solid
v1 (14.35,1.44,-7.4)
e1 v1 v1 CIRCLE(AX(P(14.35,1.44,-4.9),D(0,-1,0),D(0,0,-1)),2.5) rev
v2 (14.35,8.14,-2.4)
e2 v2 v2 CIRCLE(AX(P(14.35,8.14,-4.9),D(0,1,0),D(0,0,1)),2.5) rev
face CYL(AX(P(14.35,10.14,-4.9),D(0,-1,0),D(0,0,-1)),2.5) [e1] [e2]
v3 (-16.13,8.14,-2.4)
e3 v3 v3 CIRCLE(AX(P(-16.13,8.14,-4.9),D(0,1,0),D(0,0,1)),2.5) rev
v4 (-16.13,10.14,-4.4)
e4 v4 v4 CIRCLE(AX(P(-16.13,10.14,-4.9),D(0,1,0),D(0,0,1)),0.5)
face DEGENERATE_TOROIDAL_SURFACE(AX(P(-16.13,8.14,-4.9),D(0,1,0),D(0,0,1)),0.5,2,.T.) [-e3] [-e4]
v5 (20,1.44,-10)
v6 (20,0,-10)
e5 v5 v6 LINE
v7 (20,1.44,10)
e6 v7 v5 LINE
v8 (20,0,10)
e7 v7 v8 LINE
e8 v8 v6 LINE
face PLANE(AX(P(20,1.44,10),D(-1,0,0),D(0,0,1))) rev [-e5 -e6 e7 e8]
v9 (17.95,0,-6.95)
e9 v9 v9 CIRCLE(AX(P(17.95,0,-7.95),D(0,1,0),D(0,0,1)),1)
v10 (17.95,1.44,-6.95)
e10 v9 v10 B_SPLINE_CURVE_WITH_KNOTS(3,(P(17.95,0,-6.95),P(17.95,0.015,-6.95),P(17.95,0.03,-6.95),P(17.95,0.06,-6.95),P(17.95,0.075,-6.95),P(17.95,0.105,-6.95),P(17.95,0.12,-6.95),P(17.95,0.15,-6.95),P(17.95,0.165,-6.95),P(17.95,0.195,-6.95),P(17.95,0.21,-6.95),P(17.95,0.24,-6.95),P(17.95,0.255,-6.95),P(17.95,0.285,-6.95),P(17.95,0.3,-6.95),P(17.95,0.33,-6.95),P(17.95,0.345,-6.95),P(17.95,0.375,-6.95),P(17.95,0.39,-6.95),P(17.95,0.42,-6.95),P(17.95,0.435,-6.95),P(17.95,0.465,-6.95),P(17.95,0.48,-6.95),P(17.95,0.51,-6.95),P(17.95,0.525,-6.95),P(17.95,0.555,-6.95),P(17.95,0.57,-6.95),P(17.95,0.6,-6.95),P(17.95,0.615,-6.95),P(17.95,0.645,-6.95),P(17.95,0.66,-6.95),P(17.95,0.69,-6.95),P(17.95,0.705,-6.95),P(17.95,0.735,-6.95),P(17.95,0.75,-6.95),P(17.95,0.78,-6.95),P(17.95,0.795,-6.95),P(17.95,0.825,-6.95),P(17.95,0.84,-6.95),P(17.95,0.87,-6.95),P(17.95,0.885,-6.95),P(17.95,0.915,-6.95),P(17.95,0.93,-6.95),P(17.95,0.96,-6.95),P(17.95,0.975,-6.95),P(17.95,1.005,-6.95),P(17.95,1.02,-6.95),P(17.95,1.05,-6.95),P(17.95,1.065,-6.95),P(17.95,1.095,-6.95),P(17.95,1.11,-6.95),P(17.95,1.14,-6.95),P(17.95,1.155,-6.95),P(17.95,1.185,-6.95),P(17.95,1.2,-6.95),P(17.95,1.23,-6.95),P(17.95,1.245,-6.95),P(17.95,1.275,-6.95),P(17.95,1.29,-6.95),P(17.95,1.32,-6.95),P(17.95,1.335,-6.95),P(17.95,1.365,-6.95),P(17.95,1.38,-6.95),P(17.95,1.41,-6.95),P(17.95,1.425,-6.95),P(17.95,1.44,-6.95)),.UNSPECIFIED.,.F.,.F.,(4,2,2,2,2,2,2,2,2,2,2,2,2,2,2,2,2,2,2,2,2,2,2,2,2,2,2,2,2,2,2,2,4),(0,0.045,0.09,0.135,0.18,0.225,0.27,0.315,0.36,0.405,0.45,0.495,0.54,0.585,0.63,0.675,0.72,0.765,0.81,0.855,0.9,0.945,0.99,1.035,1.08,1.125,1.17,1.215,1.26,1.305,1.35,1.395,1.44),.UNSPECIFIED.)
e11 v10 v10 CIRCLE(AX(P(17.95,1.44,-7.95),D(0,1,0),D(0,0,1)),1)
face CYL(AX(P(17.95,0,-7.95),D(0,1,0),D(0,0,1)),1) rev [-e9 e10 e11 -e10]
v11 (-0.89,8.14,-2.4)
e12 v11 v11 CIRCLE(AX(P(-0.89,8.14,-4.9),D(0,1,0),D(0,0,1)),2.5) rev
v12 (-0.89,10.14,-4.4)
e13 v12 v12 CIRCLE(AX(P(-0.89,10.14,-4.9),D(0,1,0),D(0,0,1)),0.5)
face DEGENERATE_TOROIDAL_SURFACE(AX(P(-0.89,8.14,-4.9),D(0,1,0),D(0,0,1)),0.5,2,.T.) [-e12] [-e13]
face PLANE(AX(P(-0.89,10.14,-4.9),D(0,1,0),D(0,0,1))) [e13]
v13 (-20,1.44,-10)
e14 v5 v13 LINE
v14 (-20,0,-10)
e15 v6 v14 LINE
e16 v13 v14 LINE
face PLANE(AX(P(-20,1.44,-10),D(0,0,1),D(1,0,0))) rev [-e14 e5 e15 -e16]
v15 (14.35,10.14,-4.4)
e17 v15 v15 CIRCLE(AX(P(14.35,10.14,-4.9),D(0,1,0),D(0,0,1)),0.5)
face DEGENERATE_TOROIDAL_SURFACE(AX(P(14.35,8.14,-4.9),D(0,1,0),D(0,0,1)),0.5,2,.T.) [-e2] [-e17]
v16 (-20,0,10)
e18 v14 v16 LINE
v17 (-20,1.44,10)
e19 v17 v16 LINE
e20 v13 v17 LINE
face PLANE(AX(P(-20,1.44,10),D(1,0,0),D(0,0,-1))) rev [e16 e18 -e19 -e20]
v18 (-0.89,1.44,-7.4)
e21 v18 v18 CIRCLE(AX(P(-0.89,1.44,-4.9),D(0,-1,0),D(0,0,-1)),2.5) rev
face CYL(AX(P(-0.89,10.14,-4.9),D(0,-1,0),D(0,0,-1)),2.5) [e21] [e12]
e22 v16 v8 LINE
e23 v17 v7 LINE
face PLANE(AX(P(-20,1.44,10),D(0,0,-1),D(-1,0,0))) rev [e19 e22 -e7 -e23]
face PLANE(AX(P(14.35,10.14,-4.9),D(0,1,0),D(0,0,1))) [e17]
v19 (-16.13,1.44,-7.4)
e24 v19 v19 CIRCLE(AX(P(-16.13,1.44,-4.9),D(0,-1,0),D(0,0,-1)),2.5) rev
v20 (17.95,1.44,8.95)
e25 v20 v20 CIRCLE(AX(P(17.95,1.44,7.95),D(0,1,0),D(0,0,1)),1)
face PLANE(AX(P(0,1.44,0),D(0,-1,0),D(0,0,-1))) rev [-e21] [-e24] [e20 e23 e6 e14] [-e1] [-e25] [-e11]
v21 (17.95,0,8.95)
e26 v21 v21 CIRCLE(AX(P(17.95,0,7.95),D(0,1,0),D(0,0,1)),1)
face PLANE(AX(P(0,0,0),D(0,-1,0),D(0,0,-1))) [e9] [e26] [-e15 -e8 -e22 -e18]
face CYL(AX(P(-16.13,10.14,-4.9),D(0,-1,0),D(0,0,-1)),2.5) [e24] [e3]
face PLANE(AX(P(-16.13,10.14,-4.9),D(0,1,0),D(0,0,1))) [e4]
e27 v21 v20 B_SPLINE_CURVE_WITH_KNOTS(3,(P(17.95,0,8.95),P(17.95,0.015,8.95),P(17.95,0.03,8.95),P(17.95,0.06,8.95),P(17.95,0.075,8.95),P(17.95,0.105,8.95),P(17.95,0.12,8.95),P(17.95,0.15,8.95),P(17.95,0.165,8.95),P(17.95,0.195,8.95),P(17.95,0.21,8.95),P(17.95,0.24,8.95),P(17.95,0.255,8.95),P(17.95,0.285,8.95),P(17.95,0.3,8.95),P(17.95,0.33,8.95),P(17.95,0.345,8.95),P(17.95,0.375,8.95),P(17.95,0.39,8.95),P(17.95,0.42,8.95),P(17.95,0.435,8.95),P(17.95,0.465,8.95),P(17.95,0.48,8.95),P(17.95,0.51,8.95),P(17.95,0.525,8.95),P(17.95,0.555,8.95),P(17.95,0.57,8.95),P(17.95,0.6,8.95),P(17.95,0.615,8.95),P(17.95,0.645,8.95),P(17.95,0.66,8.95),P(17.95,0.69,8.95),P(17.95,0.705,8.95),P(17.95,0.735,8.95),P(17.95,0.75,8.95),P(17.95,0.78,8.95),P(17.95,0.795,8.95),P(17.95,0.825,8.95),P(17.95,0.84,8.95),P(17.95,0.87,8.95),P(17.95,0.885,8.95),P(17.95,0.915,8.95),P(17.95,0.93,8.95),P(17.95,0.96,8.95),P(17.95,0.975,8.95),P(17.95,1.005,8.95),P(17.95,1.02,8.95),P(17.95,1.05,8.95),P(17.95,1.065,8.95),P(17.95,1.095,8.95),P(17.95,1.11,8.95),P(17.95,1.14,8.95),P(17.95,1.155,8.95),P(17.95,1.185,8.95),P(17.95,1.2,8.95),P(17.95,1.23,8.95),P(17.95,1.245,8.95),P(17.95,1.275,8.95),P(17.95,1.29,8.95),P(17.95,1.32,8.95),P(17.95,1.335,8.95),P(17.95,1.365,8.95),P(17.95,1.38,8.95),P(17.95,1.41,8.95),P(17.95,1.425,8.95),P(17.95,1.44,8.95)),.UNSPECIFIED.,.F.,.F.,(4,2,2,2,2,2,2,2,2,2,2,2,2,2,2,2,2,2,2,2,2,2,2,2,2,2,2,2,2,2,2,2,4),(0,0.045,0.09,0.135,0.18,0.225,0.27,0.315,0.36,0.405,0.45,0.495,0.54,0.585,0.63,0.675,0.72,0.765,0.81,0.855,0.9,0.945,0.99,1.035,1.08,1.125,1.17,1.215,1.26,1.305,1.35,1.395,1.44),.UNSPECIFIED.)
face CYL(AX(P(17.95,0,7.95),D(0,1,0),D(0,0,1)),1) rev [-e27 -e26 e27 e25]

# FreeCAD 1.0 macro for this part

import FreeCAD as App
import Part
import Sketcher

V = App.Vector
Q = App.Units.Quantity


def edges_at(feature, points):
    """Names of the edges that pass closest to the given points."""
    edges = feature.Shape.Edges
    near = lambda p: min(range(len(edges)), key=lambda i: edges[i].distToShape(Part.Vertex(*p))[0])
    return sorted({f"Edge{near(p) + 1}" for p in points})


def add_polygon(sketch, points):
    """Adds a closed chain of lines whose ends are joined by coincident constraints."""
    first, n = sketch.GeometryCount, len(points)
    for a, b in zip(points, points[1:] + points[:1]):
        sketch.addGeometry(Part.LineSegment(App.Vector(*a, 0), App.Vector(*b, 0)), False)
    for i in range(n):
        sketch.addConstraint(Sketcher.Constraint("Coincident", first + i, 2, first + (i + 1) % n, 1))

doc = App.newDocument("Part")
params = doc.addObject("Spreadsheet::Sheet", "Params")
for row, (alias, value) in enumerate([
    ("sketch1_width", "40 mm"),
    ("sketch1_height", "20 mm"),
    ("pad1_length", "1.44 mm"),
    ("sketch2_diameter", "5 mm"),
    ("pad2_length", "8.7 mm"),
    ("fillet_radius", "2 mm"),
    ("sketch3_diameter", "2 mm"),
], start=1):
    params.set(f"A{row}", alias)
    params.set(f"B{row}", "=" + value)
    params.setAlias(f"B{row}", alias)

body = doc.addObject("PartDesign::Body", "Body")

sketch1 = body.newObject("Sketcher::SketchObject", "Sketch")
sketch1.AttachmentSupport = (doc.getObject("XZ_Plane"), [""])
sketch1.MapMode = "FlatFace"
add_polygon(sketch1, [(-20, -10), (-20, 10), (20, 10), (20, -10)])
sketch1.addConstraint([
    Sketcher.Constraint("Vertical", 0),
    Sketcher.Constraint("Horizontal", 1),
    Sketcher.Constraint("Vertical", 2),
    Sketcher.Constraint("Horizontal", 3),
    Sketcher.Constraint("Symmetric", 0, 2, 2, 2, -1, 1),
    Sketcher.Constraint("DistanceX", 1, 1, 1, 2, Q("40 mm")),
    Sketcher.Constraint("DistanceY", 0, 1, 0, 2, Q("20 mm")),
])
sketch1.setExpression("Constraints[9]", "Params.sketch1_width")
sketch1.setExpression("Constraints[10]", "Params.sketch1_height")
pad1 = body.newObject("PartDesign::Pad", "Pad")
pad1.Profile = sketch1
pad1.setExpression("Length", "Params.pad1_length")
pad1.Reversed = True

sketch2 = body.newObject("Sketcher::SketchObject", "Sketch001")
sketch2.AttachmentSupport = (doc.getObject("XZ_Plane"), [""])
sketch2.MapMode = "FlatFace"
sketch2.AttachmentOffset = App.Placement(V(0, 0, -1.44), App.Rotation())
sketch2.addGeometry([
    Part.Circle(V(14.3, -4.9, 0), V(0, 0, 1), 2.5),
    Part.Circle(V(-0.9, -4.9, 0), V(0, 0, 1), 2.5),
    Part.Circle(V(-16.1, -4.9, 0), V(0, 0, 1), 2.5),
], False)
sketch2.addConstraint([
    Sketcher.Constraint("Equal", 0, 1),
    Sketcher.Constraint("Equal", 1, 2),
    Sketcher.Constraint("Horizontal", 0, 3, 1, 3),
    Sketcher.Constraint("Horizontal", 1, 3, 2, 3),
    Sketcher.Constraint("Diameter", 0, Q("5 mm")),
    Sketcher.Constraint("DistanceY", 0, 3, -1, 1, Q("4.9 mm")),
    Sketcher.Constraint("DistanceX", -1, 1, 0, 3, Q("14.35 mm")),
    Sketcher.Constraint("DistanceX", 1, 3, -1, 1, Q("0.89 mm")),
    Sketcher.Constraint("DistanceX", 2, 3, -1, 1, Q("16.13 mm")),
])
sketch2.setExpression("Constraints[4]", "Params.sketch2_diameter")
pad2 = body.newObject("PartDesign::Pad", "Pad001")
pad2.Profile = sketch2
pad2.setExpression("Length", "Params.pad2_length")
pad2.Reversed = True
doc.recompute()

fillet = body.newObject("PartDesign::Fillet", "Fillet")
fillet.Base = (pad2, edges_at(pad2, [(14.35, 10.14, -2.4), (-0.89, 10.14, -2.4), (-16.13, 10.14, -2.4)]))
fillet.setExpression("Radius", "Params.fillet_radius")

sketch3 = body.newObject("Sketcher::SketchObject", "Sketch002")
sketch3.AttachmentSupport = (doc.getObject("XZ_Plane"), [""])
sketch3.MapMode = "FlatFace"
sketch3.AttachmentOffset = App.Placement(V(0, 0, -1.44), App.Rotation())
sketch3.addGeometry([
    Part.Circle(V(17.9, -8, 0), V(0, 0, 1), 1),
    Part.Circle(V(17.9, 8, 0), V(0, 0, 1), 1),
], False)
sketch3.addConstraint([
    Sketcher.Constraint("Equal", 0, 1),
    Sketcher.Constraint("Symmetric", 0, 3, 1, 3, -1),
    Sketcher.Constraint("Diameter", 0, Q("2 mm")),
    Sketcher.Constraint("DistanceY", 0, 3, 1, 3, Q("15.9 mm")),
    Sketcher.Constraint("DistanceX", -1, 1, 0, 3, Q("17.95 mm")),
])
sketch3.setExpression("Constraints[2]", "Params.sketch3_diameter")
pocket1 = body.newObject("PartDesign::Pocket", "Pocket")
pocket1.Profile = sketch3
pocket1.Type = "ThroughAll"
pocket1.Reversed = True

doc.recompute()
